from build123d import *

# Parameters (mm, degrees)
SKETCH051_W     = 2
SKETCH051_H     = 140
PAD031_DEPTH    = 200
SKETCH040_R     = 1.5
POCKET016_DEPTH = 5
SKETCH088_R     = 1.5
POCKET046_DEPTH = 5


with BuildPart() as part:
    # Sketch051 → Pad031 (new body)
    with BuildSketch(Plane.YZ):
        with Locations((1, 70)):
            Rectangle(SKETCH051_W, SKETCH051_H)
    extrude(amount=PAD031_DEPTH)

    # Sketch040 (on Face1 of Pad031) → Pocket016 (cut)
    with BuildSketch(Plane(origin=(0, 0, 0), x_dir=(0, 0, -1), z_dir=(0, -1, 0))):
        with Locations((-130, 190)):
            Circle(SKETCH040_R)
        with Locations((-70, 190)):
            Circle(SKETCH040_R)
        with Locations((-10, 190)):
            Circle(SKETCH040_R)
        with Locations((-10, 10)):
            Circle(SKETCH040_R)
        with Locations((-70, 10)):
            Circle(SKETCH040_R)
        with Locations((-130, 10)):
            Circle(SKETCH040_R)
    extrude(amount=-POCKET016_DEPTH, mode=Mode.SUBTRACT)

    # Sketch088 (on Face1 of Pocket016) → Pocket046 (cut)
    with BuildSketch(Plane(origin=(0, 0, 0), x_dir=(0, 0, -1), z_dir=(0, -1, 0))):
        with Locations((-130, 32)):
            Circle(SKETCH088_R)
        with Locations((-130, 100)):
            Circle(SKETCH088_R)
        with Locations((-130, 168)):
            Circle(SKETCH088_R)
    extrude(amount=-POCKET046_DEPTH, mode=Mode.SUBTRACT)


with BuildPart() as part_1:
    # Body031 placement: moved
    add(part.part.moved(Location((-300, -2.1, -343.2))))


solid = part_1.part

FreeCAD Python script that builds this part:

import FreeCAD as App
import Part
import Sketcher

V = App.Vector


def add_polygon(sketch, points):
    """Adds a closed chain of lines whose ends are joined by coincident constraints."""
    first, n = sketch.GeometryCount, len(points)
    for a, b in zip(points, points[1:] + points[:1]):
        sketch.addGeometry(Part.LineSegment(App.Vector(*a, 0), App.Vector(*b, 0)), False)
    for i in range(n):
        sketch.addConstraint(Sketcher.Constraint("Coincident", first + i, 2, first + (i + 1) % n, 1))

doc = App.newDocument("Part")
body = doc.addObject("PartDesign::Body", "Body")

# Sketch on YZ plane
sketch1 = body.newObject("Sketcher::SketchObject", "Sketch")
sketch1.AttachmentSupport = (doc.getObject("YZ_Plane"), [""])
sketch1.MapMode = "FlatFace"
add_polygon(sketch1, [(0, 140), (0, 0), (2, 0), (2, 140)])  # lines 0-3
sketch1.addConstraint(Sketcher.Constraint("Vertical", 0))
sketch1.addConstraint(Sketcher.Constraint("Horizontal", 1))
sketch1.addConstraint(Sketcher.Constraint("Vertical", 2))
sketch1.addConstraint(Sketcher.Constraint("Horizontal", 3))
sketch1.addConstraint(Sketcher.Constraint("Coincident", 0, 2, -1, 1))
sketch1.addConstraint(Sketcher.Constraint("DistanceX", 1, 1, 1, 2, 2.0))
sketch1.addConstraint(Sketcher.Constraint("DistanceY", 0, 2, 0, 1, 140.0))
pad1 = body.newObject("PartDesign::Pad", "Pad")
pad1.Profile = sketch1
pad1.Length = 200

# Sketch on XZ plane
sketch2 = body.newObject("Sketcher::SketchObject", "Sketch001")
sketch2.AttachmentSupport = (doc.getObject("XZ_Plane"), [""])
sketch2.MapMode = "FlatFace"
sketch2.addGeometry(Part.Circle(V(190, 130, 0), V(0, 0, 1), 1.5), False)
sketch2.addGeometry(Part.Circle(V(190, 70, 0), V(0, 0, 1), 1.5), False)
sketch2.addGeometry(Part.Circle(V(190, 10, 0), V(0, 0, 1), 1.5), False)
sketch2.addGeometry(Part.Circle(V(10, 10, 0), V(0, 0, 1), 1.5), False)
sketch2.addGeometry(Part.Circle(V(10, 70, 0), V(0, 0, 1), 1.5), False)
sketch2.addGeometry(Part.Circle(V(10, 130, 0), V(0, 0, 1), 1.5), False)
sketch2.addConstraint(Sketcher.Constraint("Equal", 0, 1))
sketch2.addConstraint(Sketcher.Constraint("Equal", 1, 2))
sketch2.addConstraint(Sketcher.Constraint("Equal", 2, 3))
sketch2.addConstraint(Sketcher.Constraint("Equal", 3, 4))
sketch2.addConstraint(Sketcher.Constraint("Equal", 4, 5))
sketch2.addConstraint(Sketcher.Constraint("Horizontal", 2, 3, 3, 3))
sketch2.addConstraint(Sketcher.Constraint("Horizontal", 1, 3, 4, 3))
sketch2.addConstraint(Sketcher.Constraint("Horizontal", 0, 3, 5, 3))
sketch2.addConstraint(Sketcher.Constraint("Vertical", 0, 3, 1, 3))
sketch2.addConstraint(Sketcher.Constraint("Vertical", 1, 3, 2, 3))
sketch2.addConstraint(Sketcher.Constraint("Vertical", 3, 3, 4, 3))
sketch2.addConstraint(Sketcher.Constraint("Vertical", 4, 3, 5, 3))
sketch2.addConstraint(Sketcher.Constraint("Diameter", 0, 3.0))
sketch2.addConstraint(Sketcher.Constraint("DistanceX", -1, 1, 0, 3, 190.0))
sketch2.addConstraint(Sketcher.Constraint("DistanceY", -1, 1, 0, 3, 130.0))
sketch2.addConstraint(Sketcher.Constraint("DistanceY", -1, 1, 1, 3, 70.0))
sketch2.addConstraint(Sketcher.Constraint("DistanceY", -1, 1, 2, 3, 10.0))
sketch2.addConstraint(Sketcher.Constraint("DistanceX", -1, 1, 3, 3, 10.0))
pocket1 = body.newObject("PartDesign::Pocket", "Pocket")
pocket1.Profile = sketch2
pocket1.Length = 5

# Sketch on XZ plane
sketch3 = body.newObject("Sketcher::SketchObject", "Sketch002")
sketch3.AttachmentSupport = (doc.getObject("XZ_Plane"), [""])
sketch3.MapMode = "FlatFace"
sketch3.addGeometry(Part.Circle(V(32, 130, 0), V(0, 0, 1), 1.5), False)
sketch3.addGeometry(Part.Circle(V(100, 130, 0), V(0, 0, 1), 1.5), False)
sketch3.addGeometry(Part.Circle(V(168, 130, 0), V(0, 0, 1), 1.5), False)
sketch3.addConstraint(Sketcher.Constraint("Equal", 0, 1))
sketch3.addConstraint(Sketcher.Constraint("Equal", 1, 2))
sketch3.addConstraint(Sketcher.Constraint("Horizontal", 0, 3, 1, 3))
sketch3.addConstraint(Sketcher.Constraint("Horizontal", 1, 3, 2, 3))
sketch3.addConstraint(Sketcher.Constraint("Diameter", 0, 3.0))
sketch3.addConstraint(Sketcher.Constraint("DistanceX", -1, 1, 0, 3, 32.0))
sketch3.addConstraint(Sketcher.Constraint("DistanceY", -1, 1, 0, 3, 130.0))
sketch3.addConstraint(Sketcher.Constraint("DistanceX", -1, 1, 1, 3, 100.0))
sketch3.addConstraint(Sketcher.Constraint("DistanceX", -1, 1, 2, 3, 168.0))
pocket2 = body.newObject("PartDesign::Pocket", "Pocket001")
pocket2.Profile = sketch3
pocket2.Length = 5
body2 = doc.addObject("PartDesign::Body", "Body001")
doc.recompute()

body.Placement = App.Placement(V(-300, -2.1, -343.2), App.Rotation(V(0, 0, 1), 0))
boolean = body2.newObject("PartDesign::Boolean", "Boolean")
boolean.Type = "Fuse"
boolean.addObjects([body])

doc.recompute()
